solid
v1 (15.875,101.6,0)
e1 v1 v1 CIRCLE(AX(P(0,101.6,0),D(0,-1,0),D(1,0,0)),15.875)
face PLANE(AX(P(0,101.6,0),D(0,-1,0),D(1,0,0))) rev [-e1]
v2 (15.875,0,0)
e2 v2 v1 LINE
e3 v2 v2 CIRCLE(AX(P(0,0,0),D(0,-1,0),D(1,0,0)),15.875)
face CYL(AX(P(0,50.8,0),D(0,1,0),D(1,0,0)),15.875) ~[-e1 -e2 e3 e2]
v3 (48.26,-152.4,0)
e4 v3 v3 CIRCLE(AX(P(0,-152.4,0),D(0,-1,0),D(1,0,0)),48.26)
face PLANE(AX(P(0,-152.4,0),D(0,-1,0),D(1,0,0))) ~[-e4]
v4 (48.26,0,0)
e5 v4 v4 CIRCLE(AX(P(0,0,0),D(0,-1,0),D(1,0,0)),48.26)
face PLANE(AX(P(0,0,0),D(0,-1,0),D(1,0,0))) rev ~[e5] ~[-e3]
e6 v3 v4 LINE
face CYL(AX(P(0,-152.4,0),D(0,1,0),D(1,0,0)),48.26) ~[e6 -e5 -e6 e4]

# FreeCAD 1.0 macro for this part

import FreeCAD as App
import Part
import Sketcher
from FreeCAD import Vector
Q = App.Units.Quantity

doc = App.newDocument("Part")
params = doc.addObject("Spreadsheet::Sheet", "Params")
for row, (alias, value) in enumerate([
    ("sketch1_height", "10 in"),
    ("sketch1_height2", "6 in"),
    ("sketch1_width", "1.9 in"),
    ("sketch1_width2", "1.275 in"),
    ("revolution_angle", "360 deg"),
], start=1):
    params.set(f"A{row}", alias)
    params.set(f"B{row}", "=" + value)
    params.setAlias(f"B{row}", alias)

body = doc.addObject("PartDesign::Body", "Body")

# Sketch on XY plane
sketch1 = doc.addObject("Sketcher::SketchObject", "Sketch")
body.addObject(sketch1)
sketch1.AttachmentSupport = (doc.XY_Plane, [""])
sketch1.MapMode = "FlatFace"
sketch1.addGeometry([
    Part.LineSegment(Vector(0, 102, 0), Vector(0, -152, 0)),  # 0
    Part.LineSegment(Vector(0, -152, 0), Vector(48, -152, 0)),  # 1
    Part.LineSegment(Vector(48, -152, 0), Vector(48, 0, 0)),  # 2
    Part.LineSegment(Vector(48, 0, 0), Vector(16, 0, 0)),  # 3
    Part.LineSegment(Vector(16, 0, 0), Vector(16, 102, 0)),  # 4
    Part.LineSegment(Vector(16, 102, 0), Vector(0, 102, 0)),  # 5
], False)
sketch1.addConstraint([
    Sketcher.Constraint("Coincident", 0, 2, 1, 1),
    Sketcher.Constraint("Coincident", 1, 2, 2, 1),
    Sketcher.Constraint("Coincident", 2, 2, 3, 1),
    Sketcher.Constraint("Coincident", 3, 2, 4, 1),
    Sketcher.Constraint("Coincident", 4, 2, 5, 1),
    Sketcher.Constraint("Coincident", 5, 2, 0, 1),
    Sketcher.Constraint("Vertical", 0),
    Sketcher.Constraint("Horizontal", 1),
    Sketcher.Constraint("Vertical", 2),
    Sketcher.Constraint("Horizontal", 3),
    Sketcher.Constraint("Vertical", 4),
    Sketcher.Constraint("Horizontal", 5),
    Sketcher.Constraint("PointOnObject", 0, 2, -2),
    Sketcher.Constraint("PointOnObject", 2, 2, -1),
    Sketcher.Constraint("DistanceY", 0, 2, 0, 1, Q("10 in")),
    Sketcher.Constraint("DistanceY", 2, 1, 2, 2, Q("6 in")),
    Sketcher.Constraint("DistanceX", 1, 1, 1, 2, Q("1.9 in")),
    Sketcher.Constraint("DistanceX", 3, 2, 3, 1, Q("1.275 in")),
])
sketch1.setExpression("Constraints[14]", "Params.sketch1_height")
sketch1.setExpression("Constraints[15]", "Params.sketch1_height2")
sketch1.setExpression("Constraints[16]", "Params.sketch1_width")
sketch1.setExpression("Constraints[17]", "Params.sketch1_width2")
revolution = doc.addObject("PartDesign::Revolution", "Revolution")
body.addObject(revolution)
revolution.Profile = sketch1
revolution.ReferenceAxis = (sketch1, ["V_Axis"])
revolution.setExpression("Angle", "Params.revolution_angle")

doc.recompute()
